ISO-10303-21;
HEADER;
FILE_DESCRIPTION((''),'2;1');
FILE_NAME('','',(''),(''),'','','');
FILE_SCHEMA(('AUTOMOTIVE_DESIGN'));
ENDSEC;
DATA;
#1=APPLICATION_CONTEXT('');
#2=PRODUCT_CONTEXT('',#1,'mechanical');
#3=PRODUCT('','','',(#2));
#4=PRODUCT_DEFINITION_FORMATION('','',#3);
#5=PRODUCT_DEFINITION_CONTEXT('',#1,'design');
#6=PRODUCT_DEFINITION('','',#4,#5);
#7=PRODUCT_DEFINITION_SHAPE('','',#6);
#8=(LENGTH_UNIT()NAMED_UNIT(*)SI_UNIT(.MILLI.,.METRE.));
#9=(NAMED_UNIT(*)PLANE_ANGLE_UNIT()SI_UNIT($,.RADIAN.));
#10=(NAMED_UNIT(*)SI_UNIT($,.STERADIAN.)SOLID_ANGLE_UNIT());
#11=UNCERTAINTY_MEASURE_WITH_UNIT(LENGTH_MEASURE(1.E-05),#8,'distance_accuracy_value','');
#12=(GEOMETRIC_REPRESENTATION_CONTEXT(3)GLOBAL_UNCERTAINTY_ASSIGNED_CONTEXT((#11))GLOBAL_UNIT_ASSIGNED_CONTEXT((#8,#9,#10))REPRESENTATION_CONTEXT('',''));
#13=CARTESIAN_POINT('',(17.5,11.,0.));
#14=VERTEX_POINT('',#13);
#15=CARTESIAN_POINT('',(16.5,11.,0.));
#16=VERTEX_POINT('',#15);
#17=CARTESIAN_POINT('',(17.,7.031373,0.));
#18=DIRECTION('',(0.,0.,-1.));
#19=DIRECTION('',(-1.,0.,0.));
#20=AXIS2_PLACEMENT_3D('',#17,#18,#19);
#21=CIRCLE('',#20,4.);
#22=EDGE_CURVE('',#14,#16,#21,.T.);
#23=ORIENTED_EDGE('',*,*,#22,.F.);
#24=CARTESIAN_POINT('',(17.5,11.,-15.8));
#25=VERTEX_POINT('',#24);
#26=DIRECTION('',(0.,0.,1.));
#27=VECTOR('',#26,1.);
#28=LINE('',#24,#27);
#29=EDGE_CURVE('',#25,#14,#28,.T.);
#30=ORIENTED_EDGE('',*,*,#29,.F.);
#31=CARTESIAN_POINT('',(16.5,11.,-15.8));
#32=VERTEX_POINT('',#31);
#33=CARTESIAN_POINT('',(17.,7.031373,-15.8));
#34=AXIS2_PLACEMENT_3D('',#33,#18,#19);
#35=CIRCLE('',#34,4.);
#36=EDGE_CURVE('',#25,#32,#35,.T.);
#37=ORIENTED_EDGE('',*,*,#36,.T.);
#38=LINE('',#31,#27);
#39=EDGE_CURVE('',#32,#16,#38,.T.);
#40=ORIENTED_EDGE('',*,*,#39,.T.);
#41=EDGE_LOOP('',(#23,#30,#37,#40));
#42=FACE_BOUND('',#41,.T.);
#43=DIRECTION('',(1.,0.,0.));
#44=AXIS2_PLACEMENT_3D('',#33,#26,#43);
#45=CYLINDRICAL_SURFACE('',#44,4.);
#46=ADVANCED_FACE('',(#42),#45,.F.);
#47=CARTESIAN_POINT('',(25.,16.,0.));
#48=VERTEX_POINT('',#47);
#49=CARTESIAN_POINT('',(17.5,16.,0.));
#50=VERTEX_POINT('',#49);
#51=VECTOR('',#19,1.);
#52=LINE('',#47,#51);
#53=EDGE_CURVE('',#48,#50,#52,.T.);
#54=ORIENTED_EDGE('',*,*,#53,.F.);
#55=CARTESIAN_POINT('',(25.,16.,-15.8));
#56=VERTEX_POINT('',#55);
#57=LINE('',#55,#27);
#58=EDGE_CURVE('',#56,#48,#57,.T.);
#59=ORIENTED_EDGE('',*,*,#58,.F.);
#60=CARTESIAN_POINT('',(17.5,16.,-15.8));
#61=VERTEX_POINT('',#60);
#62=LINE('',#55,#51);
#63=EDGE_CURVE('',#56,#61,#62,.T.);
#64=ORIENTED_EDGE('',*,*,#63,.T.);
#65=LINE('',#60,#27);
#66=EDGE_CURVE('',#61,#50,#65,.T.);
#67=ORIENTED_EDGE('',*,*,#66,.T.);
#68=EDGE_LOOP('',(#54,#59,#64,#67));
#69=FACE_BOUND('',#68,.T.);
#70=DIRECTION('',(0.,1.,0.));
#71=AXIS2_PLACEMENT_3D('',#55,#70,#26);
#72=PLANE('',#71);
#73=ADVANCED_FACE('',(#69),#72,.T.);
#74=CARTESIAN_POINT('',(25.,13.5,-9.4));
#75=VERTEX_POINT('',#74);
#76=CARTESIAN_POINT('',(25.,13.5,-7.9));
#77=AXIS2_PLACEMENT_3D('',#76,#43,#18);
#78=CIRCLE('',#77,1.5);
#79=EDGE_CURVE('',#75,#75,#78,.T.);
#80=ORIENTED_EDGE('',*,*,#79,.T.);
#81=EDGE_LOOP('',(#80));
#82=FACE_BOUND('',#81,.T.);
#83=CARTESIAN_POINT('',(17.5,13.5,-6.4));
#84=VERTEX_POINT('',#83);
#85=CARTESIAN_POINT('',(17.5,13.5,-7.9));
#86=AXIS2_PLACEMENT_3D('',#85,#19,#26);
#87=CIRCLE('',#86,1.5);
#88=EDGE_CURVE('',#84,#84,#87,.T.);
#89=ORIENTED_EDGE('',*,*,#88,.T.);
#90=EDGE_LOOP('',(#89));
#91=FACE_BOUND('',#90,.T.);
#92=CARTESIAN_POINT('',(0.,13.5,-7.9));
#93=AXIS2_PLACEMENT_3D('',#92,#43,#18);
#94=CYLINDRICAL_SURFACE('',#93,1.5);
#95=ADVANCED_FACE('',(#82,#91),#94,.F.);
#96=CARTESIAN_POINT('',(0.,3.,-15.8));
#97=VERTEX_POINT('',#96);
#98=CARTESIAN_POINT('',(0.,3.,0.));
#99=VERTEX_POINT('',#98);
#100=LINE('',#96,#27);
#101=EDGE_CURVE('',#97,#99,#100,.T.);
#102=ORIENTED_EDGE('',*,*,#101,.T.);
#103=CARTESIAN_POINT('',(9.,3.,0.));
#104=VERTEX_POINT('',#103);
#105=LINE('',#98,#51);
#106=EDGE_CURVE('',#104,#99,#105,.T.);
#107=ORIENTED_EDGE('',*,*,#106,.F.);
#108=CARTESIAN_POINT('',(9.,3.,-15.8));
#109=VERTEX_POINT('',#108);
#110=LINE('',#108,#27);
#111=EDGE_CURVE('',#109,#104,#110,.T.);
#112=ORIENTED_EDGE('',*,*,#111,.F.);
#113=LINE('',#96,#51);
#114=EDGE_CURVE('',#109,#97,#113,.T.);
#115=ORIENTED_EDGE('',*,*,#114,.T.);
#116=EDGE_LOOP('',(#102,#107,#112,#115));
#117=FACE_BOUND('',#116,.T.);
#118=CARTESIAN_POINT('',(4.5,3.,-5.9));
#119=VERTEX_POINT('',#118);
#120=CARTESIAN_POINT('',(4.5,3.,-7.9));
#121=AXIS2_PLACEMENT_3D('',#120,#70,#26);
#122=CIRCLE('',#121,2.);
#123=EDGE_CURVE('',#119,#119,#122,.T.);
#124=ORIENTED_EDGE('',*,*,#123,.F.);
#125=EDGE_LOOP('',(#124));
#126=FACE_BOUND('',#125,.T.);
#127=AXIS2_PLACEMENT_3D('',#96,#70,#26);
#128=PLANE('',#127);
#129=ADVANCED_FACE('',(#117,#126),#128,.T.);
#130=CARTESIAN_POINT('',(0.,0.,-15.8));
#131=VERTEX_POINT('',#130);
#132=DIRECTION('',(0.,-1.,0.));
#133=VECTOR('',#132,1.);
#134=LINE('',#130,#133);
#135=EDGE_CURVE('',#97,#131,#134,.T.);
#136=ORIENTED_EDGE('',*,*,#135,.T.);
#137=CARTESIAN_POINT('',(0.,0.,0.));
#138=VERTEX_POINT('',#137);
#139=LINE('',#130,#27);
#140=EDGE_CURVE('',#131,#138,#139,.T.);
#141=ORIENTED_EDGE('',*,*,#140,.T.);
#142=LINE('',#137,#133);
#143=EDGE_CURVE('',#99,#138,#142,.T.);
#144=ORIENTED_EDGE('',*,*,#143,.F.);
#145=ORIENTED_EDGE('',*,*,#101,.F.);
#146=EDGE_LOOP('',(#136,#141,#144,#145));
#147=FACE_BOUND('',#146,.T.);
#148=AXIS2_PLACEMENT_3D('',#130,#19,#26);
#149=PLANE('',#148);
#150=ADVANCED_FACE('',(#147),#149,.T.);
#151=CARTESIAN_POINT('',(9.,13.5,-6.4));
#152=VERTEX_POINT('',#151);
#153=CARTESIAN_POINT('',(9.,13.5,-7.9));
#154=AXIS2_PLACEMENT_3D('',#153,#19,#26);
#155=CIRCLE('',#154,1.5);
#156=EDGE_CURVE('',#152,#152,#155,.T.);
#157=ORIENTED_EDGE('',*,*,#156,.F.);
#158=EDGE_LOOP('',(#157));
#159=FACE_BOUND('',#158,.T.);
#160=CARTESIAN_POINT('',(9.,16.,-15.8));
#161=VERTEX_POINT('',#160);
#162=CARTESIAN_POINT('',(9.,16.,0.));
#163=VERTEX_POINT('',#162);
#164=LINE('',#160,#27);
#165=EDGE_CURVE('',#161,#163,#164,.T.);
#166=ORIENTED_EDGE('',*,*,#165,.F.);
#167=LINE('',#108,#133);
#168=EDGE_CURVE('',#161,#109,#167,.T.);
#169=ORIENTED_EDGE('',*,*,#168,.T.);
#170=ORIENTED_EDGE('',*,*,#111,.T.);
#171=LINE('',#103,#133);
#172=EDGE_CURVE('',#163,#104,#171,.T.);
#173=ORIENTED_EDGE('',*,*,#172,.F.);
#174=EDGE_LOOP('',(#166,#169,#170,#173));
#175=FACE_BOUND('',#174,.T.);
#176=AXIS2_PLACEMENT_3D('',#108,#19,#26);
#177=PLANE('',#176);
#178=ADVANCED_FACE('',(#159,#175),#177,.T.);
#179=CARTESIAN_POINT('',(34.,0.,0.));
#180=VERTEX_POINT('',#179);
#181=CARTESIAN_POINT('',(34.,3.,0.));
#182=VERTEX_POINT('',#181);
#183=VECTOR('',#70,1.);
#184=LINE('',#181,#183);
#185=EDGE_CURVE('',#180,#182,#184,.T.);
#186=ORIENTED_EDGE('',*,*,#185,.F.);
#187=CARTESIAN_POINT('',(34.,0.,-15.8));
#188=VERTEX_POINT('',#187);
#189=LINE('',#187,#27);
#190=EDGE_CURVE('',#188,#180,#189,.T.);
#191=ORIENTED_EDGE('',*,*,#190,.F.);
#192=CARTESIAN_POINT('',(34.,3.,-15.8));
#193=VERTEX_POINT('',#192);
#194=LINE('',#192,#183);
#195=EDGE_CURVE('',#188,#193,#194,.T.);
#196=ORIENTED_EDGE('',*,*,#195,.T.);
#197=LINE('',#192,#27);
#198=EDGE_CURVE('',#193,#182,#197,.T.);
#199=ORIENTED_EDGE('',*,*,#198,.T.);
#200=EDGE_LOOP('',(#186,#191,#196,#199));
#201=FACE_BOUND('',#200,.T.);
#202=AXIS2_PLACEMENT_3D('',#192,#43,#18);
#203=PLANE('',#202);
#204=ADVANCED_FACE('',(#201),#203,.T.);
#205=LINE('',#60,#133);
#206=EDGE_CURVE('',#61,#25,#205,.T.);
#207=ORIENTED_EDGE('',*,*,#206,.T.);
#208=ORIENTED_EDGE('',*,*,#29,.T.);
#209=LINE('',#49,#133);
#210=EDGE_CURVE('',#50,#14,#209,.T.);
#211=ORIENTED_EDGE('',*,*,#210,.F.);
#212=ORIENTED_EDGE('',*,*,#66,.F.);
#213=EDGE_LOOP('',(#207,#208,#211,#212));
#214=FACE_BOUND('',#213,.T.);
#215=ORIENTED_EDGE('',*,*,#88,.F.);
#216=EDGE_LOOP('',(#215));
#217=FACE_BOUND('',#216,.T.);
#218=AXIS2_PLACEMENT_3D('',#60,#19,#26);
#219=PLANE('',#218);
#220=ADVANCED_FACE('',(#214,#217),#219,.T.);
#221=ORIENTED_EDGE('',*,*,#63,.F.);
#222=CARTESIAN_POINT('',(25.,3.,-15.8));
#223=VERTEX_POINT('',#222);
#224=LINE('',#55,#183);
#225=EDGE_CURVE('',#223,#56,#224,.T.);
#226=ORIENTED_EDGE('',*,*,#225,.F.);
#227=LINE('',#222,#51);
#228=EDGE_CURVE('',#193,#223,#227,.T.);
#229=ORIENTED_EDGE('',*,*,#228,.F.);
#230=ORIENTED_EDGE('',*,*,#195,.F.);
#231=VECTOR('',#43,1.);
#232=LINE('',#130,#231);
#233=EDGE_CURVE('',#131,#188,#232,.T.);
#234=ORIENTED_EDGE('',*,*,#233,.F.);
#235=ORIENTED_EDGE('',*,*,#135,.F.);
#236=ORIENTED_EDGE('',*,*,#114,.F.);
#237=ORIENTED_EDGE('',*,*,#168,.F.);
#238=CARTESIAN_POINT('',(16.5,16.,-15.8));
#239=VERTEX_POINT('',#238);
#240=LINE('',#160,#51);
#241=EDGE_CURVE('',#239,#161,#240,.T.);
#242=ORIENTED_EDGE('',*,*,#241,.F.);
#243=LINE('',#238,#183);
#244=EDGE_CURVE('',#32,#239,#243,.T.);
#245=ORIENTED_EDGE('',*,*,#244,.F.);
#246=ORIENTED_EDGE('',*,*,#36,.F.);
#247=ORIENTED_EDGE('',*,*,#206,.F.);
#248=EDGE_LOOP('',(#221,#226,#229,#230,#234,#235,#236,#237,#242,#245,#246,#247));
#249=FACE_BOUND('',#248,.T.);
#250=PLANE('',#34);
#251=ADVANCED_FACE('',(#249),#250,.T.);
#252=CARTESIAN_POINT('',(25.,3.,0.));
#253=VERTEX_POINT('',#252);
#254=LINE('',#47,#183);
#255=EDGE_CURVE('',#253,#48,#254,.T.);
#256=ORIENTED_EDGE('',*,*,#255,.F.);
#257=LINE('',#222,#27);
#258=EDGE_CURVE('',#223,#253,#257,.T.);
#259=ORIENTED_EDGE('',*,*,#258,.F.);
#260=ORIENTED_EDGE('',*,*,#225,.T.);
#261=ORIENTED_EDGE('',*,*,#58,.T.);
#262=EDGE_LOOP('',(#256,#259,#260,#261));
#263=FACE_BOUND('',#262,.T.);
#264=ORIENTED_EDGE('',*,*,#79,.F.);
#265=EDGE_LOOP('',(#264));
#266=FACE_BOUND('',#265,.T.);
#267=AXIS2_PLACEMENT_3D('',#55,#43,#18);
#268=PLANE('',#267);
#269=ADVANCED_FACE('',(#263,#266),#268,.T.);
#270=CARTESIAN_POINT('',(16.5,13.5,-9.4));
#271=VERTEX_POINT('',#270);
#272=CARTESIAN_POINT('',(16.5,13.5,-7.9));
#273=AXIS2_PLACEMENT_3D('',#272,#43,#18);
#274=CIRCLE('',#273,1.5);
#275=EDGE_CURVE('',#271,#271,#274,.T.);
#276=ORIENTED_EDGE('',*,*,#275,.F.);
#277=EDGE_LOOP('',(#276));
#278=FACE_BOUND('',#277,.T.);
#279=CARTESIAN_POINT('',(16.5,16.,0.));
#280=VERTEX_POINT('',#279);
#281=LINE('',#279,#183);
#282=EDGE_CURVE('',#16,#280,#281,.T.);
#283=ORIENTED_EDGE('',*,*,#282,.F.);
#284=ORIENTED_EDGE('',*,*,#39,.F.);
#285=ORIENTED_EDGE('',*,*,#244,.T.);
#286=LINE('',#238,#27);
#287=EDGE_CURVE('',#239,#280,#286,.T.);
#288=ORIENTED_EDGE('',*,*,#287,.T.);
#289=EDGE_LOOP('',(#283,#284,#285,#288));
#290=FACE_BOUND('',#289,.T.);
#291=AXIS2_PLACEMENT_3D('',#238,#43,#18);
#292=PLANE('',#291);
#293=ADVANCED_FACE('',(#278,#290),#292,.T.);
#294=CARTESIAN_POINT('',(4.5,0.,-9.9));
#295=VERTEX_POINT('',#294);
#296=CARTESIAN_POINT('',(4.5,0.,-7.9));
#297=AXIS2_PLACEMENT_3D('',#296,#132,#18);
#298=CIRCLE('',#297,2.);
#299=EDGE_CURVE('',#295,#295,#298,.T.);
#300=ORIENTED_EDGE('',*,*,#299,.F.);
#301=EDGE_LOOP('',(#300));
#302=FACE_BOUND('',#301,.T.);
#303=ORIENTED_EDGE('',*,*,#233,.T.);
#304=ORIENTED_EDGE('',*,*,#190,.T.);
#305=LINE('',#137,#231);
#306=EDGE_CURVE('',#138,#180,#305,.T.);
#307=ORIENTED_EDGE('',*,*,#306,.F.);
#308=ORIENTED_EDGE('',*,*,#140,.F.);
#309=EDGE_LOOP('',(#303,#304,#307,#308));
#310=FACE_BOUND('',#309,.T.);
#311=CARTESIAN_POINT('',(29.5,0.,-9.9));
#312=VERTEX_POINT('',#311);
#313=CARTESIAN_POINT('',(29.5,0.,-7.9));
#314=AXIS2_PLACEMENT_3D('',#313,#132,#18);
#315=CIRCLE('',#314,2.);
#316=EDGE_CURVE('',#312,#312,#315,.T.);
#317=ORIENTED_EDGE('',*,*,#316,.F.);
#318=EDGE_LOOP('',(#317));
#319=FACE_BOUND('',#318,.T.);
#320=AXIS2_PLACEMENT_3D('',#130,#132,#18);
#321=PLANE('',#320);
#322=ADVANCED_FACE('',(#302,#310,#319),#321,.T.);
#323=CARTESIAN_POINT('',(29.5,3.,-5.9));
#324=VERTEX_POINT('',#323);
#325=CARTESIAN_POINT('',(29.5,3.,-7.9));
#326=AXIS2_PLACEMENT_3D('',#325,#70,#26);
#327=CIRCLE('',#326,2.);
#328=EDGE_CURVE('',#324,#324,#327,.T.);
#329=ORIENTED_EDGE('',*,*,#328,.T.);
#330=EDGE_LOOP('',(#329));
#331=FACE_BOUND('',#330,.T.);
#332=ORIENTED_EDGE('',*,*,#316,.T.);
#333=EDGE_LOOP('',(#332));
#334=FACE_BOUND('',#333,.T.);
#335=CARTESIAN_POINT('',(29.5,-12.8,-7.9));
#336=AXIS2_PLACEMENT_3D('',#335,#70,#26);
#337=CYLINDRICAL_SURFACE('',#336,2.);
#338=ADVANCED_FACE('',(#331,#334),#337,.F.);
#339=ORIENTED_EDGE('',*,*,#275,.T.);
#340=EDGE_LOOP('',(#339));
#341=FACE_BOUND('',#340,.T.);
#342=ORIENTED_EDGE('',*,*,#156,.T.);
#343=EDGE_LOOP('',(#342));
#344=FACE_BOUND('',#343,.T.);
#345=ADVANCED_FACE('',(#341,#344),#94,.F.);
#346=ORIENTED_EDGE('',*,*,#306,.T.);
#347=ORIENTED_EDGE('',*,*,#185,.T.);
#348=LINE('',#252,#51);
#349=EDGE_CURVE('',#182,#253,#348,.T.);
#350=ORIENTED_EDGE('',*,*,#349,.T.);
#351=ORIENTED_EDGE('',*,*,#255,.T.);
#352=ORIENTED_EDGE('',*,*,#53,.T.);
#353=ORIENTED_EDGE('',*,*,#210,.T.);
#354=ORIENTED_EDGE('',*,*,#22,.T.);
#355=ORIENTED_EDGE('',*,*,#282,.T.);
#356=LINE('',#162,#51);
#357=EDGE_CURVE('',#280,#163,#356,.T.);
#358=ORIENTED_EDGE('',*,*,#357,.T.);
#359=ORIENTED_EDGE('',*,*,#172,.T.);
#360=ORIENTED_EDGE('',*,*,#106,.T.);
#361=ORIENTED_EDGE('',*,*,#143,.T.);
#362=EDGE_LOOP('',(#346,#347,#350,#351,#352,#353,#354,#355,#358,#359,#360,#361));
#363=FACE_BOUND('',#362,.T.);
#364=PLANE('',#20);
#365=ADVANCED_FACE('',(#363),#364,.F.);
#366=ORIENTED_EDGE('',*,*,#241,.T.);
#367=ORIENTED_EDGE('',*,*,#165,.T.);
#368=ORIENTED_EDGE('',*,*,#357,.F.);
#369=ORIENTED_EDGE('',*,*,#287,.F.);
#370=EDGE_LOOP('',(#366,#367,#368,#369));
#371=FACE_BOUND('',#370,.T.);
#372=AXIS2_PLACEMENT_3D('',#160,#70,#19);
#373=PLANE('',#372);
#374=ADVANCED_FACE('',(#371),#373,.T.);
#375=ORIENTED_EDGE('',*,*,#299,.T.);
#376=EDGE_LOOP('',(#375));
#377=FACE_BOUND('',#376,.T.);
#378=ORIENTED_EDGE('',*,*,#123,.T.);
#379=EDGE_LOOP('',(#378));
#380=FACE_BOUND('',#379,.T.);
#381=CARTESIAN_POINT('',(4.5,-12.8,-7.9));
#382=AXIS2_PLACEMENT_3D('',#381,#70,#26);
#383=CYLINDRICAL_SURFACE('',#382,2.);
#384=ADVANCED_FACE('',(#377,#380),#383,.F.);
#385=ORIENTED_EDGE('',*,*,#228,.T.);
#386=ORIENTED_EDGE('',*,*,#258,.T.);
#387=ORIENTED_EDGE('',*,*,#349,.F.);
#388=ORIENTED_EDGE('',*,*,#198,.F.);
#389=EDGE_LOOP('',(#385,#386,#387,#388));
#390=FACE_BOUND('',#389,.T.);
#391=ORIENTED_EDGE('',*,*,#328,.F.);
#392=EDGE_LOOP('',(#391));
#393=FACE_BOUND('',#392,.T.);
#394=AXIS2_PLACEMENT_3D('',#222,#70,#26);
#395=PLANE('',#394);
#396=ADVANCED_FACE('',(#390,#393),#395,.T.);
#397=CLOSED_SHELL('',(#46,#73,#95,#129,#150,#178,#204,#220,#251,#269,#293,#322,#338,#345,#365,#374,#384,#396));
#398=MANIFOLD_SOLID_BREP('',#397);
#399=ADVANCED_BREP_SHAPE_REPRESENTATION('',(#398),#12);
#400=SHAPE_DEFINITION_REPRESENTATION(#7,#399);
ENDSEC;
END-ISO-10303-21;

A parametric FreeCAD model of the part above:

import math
import FreeCAD as App
import Part
import Sketcher
Q = App.Units.Quantity

doc = App.newDocument("Part")
params = doc.addObject("Spreadsheet::Sheet", "Params")
for row, (alias, value) in enumerate([
    ("sketch1_radius", "4 mm"),
    ("sketch1_width", "34 mm"),
    ("sketch1_width2", "9 mm"),
    ("sketch1_height", "3 mm"),
    ("sketch1_height2", "13 mm"),
    ("pad1_length", "15.8 mm"),
    ("sketch2_diameter", "4 mm"),
    ("pocket1_length", "15.8 mm"),
    ("sketch3_diameter", "4 mm"),
    ("pocket2_length", "15.8 mm"),
    ("sketch4_diameter", "3 mm"),
], start=1):
    params.set(f"A{row}", alias)
    params.set(f"B{row}", "=" + value)
    params.setAlias(f"B{row}", alias)

body = doc.addObject("PartDesign::Body", "Body")

# Sketch on XY plane
sketch1 = body.newObject("Sketcher::SketchObject", "Sketch")
sketch1.AttachmentSupport = (doc.getObject("XY_Plane"), [""])
sketch1.MapMode = "FlatFace"
sketch1.addGeometry(Part.LineSegment(App.Vector(0, 0, 0), App.Vector(34, 0, 0)), False)
sketch1.addGeometry(Part.LineSegment(App.Vector(34, 0, 0), App.Vector(34, 3, 0)), False)
sketch1.addGeometry(Part.LineSegment(App.Vector(34, 3, 0), App.Vector(25, 3, 0)), False)
sketch1.addGeometry(Part.LineSegment(App.Vector(25, 3, 0), App.Vector(25, 16, 0)), False)
sketch1.addGeometry(Part.LineSegment(App.Vector(25, 16, 0), App.Vector(17.5, 16, 0)), False)
sketch1.addGeometry(Part.LineSegment(App.Vector(17.5, 16, 0), App.Vector(17.5, 11, 0)), False)
sketch1.addGeometry(Part.ArcOfCircle(Part.Circle(App.Vector(17, 7.031373, 0), App.Vector(0, 0, 1), 4), math.radians(97.180756), math.radians(442.819244)), False)
sketch1.addGeometry(Part.LineSegment(App.Vector(16.5, 11, 0), App.Vector(16.5, 16, 0)), False)
sketch1.addGeometry(Part.LineSegment(App.Vector(16.5, 16, 0), App.Vector(9, 16, 0)), False)
sketch1.addGeometry(Part.LineSegment(App.Vector(9, 16, 0), App.Vector(9, 3, 0)), False)
sketch1.addGeometry(Part.LineSegment(App.Vector(9, 3, 0), App.Vector(0, 3, 0)), False)
sketch1.addGeometry(Part.LineSegment(App.Vector(0, 3, 0), App.Vector(0, 0, 0)), False)
sketch1.addConstraint(Sketcher.Constraint("Coincident", 0, 2, 1, 1))
sketch1.addConstraint(Sketcher.Constraint("Coincident", 1, 2, 2, 1))
sketch1.addConstraint(Sketcher.Constraint("Coincident", 2, 2, 3, 1))
sketch1.addConstraint(Sketcher.Constraint("Coincident", 3, 2, 4, 1))
sketch1.addConstraint(Sketcher.Constraint("Coincident", 4, 2, 5, 1))
sketch1.addConstraint(Sketcher.Constraint("Coincident", 5, 2, 6, 2))
sketch1.addConstraint(Sketcher.Constraint("Coincident", 6, 1, 7, 1))
sketch1.addConstraint(Sketcher.Constraint("Coincident", 7, 2, 8, 1))
sketch1.addConstraint(Sketcher.Constraint("Coincident", 8, 2, 9, 1))
sketch1.addConstraint(Sketcher.Constraint("Coincident", 9, 2, 10, 1))
sketch1.addConstraint(Sketcher.Constraint("Coincident", 10, 2, 11, 1))
sketch1.addConstraint(Sketcher.Constraint("Coincident", 11, 2, 0, 1))
sketch1.addConstraint(Sketcher.Constraint("Horizontal", 0))
sketch1.addConstraint(Sketcher.Constraint("Vertical", 1))
sketch1.addConstraint(Sketcher.Constraint("Horizontal", 2))
sketch1.addConstraint(Sketcher.Constraint("Vertical", 3))
sketch1.addConstraint(Sketcher.Constraint("Horizontal", 4))
sketch1.addConstraint(Sketcher.Constraint("Vertical", 5))
sketch1.addConstraint(Sketcher.Constraint("Vertical", 7))
sketch1.addConstraint(Sketcher.Constraint("Horizontal", 8))
sketch1.addConstraint(Sketcher.Constraint("Vertical", 9))
sketch1.addConstraint(Sketcher.Constraint("Horizontal", 10))
sketch1.addConstraint(Sketcher.Constraint("Vertical", 11))
sketch1.addConstraint(Sketcher.Constraint("Coincident", 11, 2, -1, 1))
sketch1.addConstraint(Sketcher.Constraint("Horizontal", 5, 2, 6, 1))
sketch1.addConstraint(Sketcher.Constraint("Horizontal", 4, 2, 7, 2))
sketch1.addConstraint(Sketcher.Constraint("Horizontal", 2, 2, 9, 2))
sketch1.addConstraint(Sketcher.Constraint("Equal", 4, 8))
sketch1.addConstraint(Sketcher.Constraint("Equal", 2, 10))
sketch1.addConstraint(Sketcher.Constraint("Radius", 6, Q("4 mm")))
sketch1.addConstraint(Sketcher.Constraint("DistanceX", 0, 1, 0, 2, Q("34 mm")))
sketch1.addConstraint(Sketcher.Constraint("DistanceX", 2, 2, 2, 1, Q("9 mm")))
sketch1.addConstraint(Sketcher.Constraint("DistanceY", 1, 1, 1, 2, Q("3 mm")))
sketch1.addConstraint(Sketcher.Constraint("DistanceY", 3, 1, 3, 2, Q("13 mm")))
sketch1.addConstraint(Sketcher.Constraint("DistanceY", 5, 2, 5, 1, Q("5 mm")))
sketch1.addConstraint(Sketcher.Constraint("DistanceX", 4, 2, 4, 1, Q("7.5 mm")))
sketch1.setExpression("Constraints[29]", "Params.sketch1_radius")
sketch1.setExpression("Constraints[30]", "Params.sketch1_width")
sketch1.setExpression("Constraints[31]", "Params.sketch1_width2")
sketch1.setExpression("Constraints[32]", "Params.sketch1_height")
sketch1.setExpression("Constraints[33]", "Params.sketch1_height2")
pad1 = body.newObject("PartDesign::Pad", "Pad")
pad1.Profile = sketch1
pad1.setExpression("Length", "Params.pad1_length")
pad1.Reversed = True

# Sketch on XZ plane
sketch2 = body.newObject("Sketcher::SketchObject", "Sketch001")
sketch2.AttachmentSupport = (doc.getObject("XZ_Plane"), [""])
sketch2.MapMode = "FlatFace"
sketch2.AttachmentOffset = App.Placement(App.Vector(0, 0, -3), App.Rotation())
sketch2.addGeometry(Part.Circle(App.Vector(4.5, -7.9, 0), App.Vector(0, 0, 1), 2), False)
sketch2.addConstraint(Sketcher.Constraint("Diameter", 0, Q("4 mm")))
sketch2.addConstraint(Sketcher.Constraint("DistanceX", -1, 1, 0, 3, Q("4.5 mm")))
sketch2.addConstraint(Sketcher.Constraint("DistanceY", 0, 3, -1, 1, Q("7.9 mm")))
sketch2.setExpression("Constraints[0]", "Params.sketch2_diameter")
pocket1 = body.newObject("PartDesign::Pocket", "Pocket")
pocket1.Profile = sketch2
pocket1.setExpression("Length", "Params.pocket1_length")
pocket1.Reversed = True

# Sketch on XZ plane
sketch3 = body.newObject("Sketcher::SketchObject", "Sketch002")
sketch3.AttachmentSupport = (doc.getObject("XZ_Plane"), [""])
sketch3.MapMode = "FlatFace"
sketch3.AttachmentOffset = App.Placement(App.Vector(0, 0, -3), App.Rotation())
sketch3.addGeometry(Part.Circle(App.Vector(29.5, -7.9, 0), App.Vector(0, 0, 1), 2), False)
sketch3.addConstraint(Sketcher.Constraint("Diameter", 0, Q("4 mm")))
sketch3.addConstraint(Sketcher.Constraint("DistanceX", -1, 1, 0, 3, Q("29.5 mm")))
sketch3.addConstraint(Sketcher.Constraint("DistanceY", 0, 3, -1, 1, Q("7.9 mm")))
sketch3.setExpression("Constraints[0]", "Params.sketch3_diameter")
pocket2 = body.newObject("PartDesign::Pocket", "Pocket001")
pocket2.Profile = sketch3
pocket2.setExpression("Length", "Params.pocket2_length")
pocket2.Reversed = True

# Sketch on YZ plane
sketch4 = body.newObject("Sketcher::SketchObject", "Sketch003")
sketch4.AttachmentSupport = (doc.getObject("YZ_Plane"), [""])
sketch4.MapMode = "FlatFace"
sketch4.AttachmentOffset = App.Placement(App.Vector(0, 0, 25), App.Rotation())
sketch4.addGeometry(Part.Circle(App.Vector(13.5, -7.9, 0), App.Vector(0, 0, 1), 1.5), False)
sketch4.addConstraint(Sketcher.Constraint("Diameter", 0, Q("3 mm")))
sketch4.addConstraint(Sketcher.Constraint("DistanceX", -1, 1, 0, 3, Q("13.5 mm")))
sketch4.addConstraint(Sketcher.Constraint("DistanceY", 0, 3, -1, 1, Q("7.9 mm")))
sketch4.setExpression("Constraints[0]", "Params.sketch4_diameter")
pocket3 = body.newObject("PartDesign::Pocket", "Pocket002")
pocket3.Profile = sketch4
pocket3.Type = "ThroughAll"

doc.recompute()
